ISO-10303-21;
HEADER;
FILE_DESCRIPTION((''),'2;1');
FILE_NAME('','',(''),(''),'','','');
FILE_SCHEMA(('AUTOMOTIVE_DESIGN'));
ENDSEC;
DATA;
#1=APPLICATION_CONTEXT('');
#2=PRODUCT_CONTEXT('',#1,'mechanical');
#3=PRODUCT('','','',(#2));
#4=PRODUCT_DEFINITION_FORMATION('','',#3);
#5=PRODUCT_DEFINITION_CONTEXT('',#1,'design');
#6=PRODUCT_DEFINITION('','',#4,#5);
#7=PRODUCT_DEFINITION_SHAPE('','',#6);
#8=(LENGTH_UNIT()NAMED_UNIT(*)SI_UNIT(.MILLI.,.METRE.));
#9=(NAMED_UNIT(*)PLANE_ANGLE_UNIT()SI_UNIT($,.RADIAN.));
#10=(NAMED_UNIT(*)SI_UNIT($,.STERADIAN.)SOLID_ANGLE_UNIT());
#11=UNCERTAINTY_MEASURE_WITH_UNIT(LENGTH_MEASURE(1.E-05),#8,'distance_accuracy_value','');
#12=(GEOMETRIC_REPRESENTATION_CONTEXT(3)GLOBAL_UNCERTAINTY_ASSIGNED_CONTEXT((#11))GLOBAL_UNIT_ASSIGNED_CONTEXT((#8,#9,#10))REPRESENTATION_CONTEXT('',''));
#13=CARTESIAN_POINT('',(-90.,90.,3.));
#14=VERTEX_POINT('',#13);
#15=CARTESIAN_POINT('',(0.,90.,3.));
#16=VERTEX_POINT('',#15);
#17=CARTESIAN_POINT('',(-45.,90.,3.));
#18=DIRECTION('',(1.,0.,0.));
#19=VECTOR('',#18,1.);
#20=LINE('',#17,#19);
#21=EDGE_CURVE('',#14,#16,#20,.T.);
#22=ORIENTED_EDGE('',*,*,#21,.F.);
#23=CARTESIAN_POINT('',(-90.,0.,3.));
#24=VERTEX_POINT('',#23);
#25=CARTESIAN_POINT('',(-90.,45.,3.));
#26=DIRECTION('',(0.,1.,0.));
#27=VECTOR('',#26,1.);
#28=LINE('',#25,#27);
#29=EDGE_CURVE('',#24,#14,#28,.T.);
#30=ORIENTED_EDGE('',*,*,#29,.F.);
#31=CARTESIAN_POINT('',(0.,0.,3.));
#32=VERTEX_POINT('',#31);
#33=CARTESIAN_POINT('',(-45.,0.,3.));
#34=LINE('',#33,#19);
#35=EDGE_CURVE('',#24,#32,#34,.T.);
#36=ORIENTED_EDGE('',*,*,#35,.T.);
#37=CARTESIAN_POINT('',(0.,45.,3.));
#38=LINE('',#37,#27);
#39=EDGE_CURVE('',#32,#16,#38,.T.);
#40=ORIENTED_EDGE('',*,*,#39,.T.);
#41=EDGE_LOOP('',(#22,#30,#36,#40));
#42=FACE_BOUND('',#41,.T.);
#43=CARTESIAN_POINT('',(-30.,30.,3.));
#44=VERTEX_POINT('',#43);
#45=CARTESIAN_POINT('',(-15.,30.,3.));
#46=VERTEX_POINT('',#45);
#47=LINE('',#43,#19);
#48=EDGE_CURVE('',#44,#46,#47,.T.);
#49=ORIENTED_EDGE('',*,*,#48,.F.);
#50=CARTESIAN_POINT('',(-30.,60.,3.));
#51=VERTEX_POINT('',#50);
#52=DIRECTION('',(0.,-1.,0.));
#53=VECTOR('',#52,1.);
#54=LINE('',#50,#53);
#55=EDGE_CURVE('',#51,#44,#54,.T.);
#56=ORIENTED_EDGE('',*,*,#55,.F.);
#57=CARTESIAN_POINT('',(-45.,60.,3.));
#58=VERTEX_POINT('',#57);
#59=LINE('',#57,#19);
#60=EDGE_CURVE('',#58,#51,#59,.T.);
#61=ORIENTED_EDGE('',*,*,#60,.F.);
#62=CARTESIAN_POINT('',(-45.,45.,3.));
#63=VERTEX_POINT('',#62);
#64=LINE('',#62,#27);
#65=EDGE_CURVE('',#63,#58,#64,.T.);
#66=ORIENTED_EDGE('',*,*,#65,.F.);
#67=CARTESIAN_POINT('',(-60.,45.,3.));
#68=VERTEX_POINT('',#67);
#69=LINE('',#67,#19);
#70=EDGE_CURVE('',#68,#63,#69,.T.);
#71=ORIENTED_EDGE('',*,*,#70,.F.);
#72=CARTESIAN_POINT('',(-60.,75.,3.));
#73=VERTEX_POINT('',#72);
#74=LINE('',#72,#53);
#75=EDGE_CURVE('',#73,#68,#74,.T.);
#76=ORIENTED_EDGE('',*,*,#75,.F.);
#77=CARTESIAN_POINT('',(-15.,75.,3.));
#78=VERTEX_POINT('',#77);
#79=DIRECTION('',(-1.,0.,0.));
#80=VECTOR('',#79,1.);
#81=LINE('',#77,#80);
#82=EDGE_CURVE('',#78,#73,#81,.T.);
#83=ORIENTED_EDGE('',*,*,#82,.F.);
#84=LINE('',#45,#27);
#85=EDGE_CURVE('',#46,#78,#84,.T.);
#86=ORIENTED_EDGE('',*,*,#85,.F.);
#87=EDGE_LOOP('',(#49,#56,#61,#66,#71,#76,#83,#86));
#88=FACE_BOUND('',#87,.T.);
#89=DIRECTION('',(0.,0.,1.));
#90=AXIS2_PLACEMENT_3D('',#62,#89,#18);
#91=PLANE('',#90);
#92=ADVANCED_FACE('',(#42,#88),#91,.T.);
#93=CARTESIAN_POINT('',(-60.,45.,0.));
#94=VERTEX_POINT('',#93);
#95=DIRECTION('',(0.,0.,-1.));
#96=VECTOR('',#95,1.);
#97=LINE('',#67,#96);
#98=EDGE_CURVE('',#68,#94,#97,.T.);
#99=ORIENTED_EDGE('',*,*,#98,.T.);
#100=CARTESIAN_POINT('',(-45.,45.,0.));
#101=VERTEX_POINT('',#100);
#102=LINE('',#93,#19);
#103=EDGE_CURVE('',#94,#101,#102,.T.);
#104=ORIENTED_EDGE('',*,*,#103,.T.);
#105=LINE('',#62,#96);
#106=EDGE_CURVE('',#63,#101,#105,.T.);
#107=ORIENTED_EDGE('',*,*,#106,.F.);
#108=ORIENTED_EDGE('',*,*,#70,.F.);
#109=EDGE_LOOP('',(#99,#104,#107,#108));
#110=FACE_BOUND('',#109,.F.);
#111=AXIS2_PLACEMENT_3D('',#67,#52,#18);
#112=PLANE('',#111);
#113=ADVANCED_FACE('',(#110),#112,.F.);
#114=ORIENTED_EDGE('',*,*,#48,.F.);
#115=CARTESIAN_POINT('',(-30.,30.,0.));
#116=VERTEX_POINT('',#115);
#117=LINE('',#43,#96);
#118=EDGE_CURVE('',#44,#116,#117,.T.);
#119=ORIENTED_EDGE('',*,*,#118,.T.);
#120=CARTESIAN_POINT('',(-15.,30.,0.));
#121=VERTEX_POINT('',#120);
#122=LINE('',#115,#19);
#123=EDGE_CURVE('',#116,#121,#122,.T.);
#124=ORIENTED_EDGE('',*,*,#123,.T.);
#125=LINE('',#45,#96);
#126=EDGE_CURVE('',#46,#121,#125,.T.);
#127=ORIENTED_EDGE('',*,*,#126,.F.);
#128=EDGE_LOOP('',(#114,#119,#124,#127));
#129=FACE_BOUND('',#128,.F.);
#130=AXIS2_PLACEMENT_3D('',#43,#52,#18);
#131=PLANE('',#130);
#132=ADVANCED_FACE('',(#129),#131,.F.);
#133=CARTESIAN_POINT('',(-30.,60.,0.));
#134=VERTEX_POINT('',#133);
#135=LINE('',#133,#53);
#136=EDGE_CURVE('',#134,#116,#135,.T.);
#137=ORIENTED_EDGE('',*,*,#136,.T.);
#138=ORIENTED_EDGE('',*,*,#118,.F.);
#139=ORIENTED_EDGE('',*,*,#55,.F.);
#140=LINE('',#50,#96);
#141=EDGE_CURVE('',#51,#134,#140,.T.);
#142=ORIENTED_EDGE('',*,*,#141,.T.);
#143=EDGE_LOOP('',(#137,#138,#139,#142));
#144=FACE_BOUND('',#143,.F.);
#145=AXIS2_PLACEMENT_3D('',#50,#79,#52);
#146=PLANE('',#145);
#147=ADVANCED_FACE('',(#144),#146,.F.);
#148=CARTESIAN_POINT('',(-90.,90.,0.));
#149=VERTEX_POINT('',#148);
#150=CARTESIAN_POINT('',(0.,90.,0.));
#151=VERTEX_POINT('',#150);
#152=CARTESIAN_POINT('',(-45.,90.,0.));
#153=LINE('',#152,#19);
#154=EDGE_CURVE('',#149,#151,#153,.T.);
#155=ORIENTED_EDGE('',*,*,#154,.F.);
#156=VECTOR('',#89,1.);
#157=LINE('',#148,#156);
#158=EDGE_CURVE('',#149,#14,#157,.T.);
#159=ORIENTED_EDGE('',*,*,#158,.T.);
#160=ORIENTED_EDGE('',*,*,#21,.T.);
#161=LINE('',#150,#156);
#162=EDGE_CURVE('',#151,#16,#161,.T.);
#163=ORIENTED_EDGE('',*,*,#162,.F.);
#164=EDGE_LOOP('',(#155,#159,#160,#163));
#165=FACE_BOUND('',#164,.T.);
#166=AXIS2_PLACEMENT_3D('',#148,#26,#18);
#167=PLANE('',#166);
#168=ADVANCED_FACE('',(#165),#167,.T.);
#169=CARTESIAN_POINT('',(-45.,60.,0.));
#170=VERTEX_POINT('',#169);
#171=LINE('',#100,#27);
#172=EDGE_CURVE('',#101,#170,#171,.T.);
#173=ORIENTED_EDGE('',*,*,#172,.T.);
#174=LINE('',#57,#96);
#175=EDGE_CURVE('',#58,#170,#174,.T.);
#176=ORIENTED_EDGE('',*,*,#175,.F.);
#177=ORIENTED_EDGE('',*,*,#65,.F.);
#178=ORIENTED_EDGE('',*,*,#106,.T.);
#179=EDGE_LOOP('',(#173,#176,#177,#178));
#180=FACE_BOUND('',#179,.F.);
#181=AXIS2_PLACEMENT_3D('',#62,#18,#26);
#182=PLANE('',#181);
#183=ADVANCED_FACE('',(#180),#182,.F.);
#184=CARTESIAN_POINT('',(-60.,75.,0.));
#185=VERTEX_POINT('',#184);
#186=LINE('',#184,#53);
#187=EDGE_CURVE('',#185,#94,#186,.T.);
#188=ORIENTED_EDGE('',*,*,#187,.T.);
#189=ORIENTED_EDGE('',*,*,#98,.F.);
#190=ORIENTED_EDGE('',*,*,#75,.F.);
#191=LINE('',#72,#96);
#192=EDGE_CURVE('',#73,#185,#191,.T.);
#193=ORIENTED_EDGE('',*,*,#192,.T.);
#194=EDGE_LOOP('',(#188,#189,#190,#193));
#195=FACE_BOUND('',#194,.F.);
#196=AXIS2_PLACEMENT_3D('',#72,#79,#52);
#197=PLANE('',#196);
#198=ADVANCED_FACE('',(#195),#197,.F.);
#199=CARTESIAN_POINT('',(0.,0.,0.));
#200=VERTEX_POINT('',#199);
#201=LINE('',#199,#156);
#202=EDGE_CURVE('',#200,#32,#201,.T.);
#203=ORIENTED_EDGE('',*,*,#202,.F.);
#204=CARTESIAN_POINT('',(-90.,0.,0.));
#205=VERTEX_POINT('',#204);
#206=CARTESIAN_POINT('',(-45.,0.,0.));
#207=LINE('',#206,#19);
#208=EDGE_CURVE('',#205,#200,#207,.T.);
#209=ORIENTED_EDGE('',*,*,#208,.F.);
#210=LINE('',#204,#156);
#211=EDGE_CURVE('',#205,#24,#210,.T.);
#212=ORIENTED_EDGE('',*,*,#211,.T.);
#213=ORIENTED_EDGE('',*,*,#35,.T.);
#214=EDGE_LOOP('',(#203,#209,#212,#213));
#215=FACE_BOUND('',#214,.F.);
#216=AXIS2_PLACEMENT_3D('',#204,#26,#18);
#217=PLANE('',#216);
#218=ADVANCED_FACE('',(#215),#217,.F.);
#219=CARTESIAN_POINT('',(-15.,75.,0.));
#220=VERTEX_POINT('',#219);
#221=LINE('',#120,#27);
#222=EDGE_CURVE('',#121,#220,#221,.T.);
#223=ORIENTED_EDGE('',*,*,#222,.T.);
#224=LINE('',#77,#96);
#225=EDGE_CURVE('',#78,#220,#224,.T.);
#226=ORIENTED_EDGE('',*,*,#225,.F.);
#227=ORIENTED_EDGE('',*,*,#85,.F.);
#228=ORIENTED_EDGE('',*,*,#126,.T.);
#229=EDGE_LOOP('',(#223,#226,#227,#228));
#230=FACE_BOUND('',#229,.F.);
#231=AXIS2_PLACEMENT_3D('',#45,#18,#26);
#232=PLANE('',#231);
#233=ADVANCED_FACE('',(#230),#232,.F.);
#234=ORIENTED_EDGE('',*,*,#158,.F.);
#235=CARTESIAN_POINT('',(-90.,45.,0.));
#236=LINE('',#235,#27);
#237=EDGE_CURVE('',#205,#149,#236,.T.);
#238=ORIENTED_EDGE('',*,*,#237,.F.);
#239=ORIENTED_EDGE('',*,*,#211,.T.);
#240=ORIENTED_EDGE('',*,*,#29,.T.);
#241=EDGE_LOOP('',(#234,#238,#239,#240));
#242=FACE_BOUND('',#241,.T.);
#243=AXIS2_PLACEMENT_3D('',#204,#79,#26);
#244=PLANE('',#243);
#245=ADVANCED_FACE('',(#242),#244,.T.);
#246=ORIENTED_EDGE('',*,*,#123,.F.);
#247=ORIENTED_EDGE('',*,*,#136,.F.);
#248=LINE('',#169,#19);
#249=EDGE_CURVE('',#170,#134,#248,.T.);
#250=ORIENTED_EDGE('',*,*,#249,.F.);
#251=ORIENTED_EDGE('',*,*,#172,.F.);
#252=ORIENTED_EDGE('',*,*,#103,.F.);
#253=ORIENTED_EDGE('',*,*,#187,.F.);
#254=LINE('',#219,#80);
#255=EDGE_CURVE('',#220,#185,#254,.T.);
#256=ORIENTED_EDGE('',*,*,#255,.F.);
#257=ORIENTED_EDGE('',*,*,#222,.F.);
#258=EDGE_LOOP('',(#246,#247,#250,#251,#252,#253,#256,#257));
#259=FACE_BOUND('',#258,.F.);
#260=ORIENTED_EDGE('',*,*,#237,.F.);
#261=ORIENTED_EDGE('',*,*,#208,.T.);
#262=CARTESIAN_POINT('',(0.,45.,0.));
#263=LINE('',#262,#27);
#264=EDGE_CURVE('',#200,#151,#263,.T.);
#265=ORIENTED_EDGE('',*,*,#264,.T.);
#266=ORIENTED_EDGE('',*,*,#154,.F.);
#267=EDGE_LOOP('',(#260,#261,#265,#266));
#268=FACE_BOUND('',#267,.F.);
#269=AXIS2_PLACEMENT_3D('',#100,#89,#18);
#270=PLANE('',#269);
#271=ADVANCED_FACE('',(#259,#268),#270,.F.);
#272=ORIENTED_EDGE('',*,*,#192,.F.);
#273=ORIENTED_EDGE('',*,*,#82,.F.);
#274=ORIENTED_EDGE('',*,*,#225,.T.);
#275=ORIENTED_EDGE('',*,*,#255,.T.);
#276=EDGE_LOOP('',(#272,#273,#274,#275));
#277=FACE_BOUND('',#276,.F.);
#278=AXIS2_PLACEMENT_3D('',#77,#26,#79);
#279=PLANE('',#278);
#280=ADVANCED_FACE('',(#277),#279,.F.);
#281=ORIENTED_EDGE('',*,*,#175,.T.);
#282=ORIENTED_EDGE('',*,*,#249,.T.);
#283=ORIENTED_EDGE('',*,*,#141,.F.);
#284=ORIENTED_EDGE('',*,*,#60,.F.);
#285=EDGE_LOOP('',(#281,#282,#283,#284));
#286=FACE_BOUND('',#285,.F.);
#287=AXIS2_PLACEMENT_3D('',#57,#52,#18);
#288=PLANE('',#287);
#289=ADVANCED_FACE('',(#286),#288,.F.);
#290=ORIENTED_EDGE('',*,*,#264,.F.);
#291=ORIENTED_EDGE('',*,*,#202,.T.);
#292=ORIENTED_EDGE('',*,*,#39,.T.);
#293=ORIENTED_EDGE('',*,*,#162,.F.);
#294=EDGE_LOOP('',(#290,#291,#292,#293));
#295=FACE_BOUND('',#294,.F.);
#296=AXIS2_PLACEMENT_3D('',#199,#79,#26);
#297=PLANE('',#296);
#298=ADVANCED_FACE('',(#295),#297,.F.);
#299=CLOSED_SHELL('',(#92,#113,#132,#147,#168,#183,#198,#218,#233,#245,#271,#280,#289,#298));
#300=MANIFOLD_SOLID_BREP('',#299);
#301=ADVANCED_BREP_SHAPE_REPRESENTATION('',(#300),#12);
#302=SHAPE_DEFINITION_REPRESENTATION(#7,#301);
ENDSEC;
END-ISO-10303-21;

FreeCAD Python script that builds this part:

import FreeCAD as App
import Part
import Sketcher

doc = App.newDocument("Part")
body = doc.addObject("PartDesign::Body", "Body")

sketch1 = doc.addObject("Sketcher::SketchObject", "Sketch")
body.addObject(sketch1)
sketch1.AttachmentSupport = (doc.XY_Plane, [""])
sketch1.MapMode = "FlatFace"
sketch1.addGeometry([
    Part.LineSegment(App.Vector(-90, 90, 0), App.Vector(-90, 0, 0)),
    Part.LineSegment(App.Vector(-90, 0, 0), App.Vector(0, 0, 0)),
    Part.LineSegment(App.Vector(0, 0, 0), App.Vector(0, 90, 0)),
    Part.LineSegment(App.Vector(0, 90, 0), App.Vector(-90, 90, 0)),
], False)
sketch1.addConstraint([
    Sketcher.Constraint("Coincident", 0, 2, 1, 1),
    Sketcher.Constraint("Coincident", 1, 2, 2, 1),
    Sketcher.Constraint("Coincident", 2, 2, 3, 1),
    Sketcher.Constraint("Coincident", 3, 2, 0, 1),
    Sketcher.Constraint("Vertical", 0),
    Sketcher.Constraint("Horizontal", 1),
    Sketcher.Constraint("Vertical", 2),
    Sketcher.Constraint("Horizontal", 3),
    Sketcher.Constraint("Coincident", 1, 2, -1, 1),
    Sketcher.Constraint("Equal", 3, 0),
    Sketcher.Constraint("DistanceX", 1, 1, 1, 2, 90.0),
])
pad1 = doc.addObject("PartDesign::Pad", "Pad")
body.addObject(pad1)
pad1.Profile = sketch1
pad1.Length = 3

sketch2 = doc.addObject("Sketcher::SketchObject", "Sketch001")
body.addObject(sketch2)
sketch2.AttachmentSupport = (doc.XY_Plane, [""])
sketch2.MapMode = "FlatFace"
sketch2.AttachmentOffset = App.Placement(App.Vector(0, 0, 3), App.Rotation())
sketch2.addGeometry([
    Part.LineSegment(App.Vector(-60, 75, 0), App.Vector(-60, 45, 0)),
    Part.LineSegment(App.Vector(-60, 45, 0), App.Vector(-45, 45, 0)),
    Part.LineSegment(App.Vector(-45, 45, 0), App.Vector(-45, 60, 0)),
    Part.LineSegment(App.Vector(-45, 60, 0), App.Vector(-30, 60, 0)),
    Part.LineSegment(App.Vector(-30, 60, 0), App.Vector(-30, 30, 0)),
    Part.LineSegment(App.Vector(-30, 30, 0), App.Vector(-15, 30, 0)),
    Part.LineSegment(App.Vector(-15, 30, 0), App.Vector(-15, 75, 0)),
    Part.LineSegment(App.Vector(-15, 75, 0), App.Vector(-60, 75, 0)),
], False)
sketch2.addConstraint([
    Sketcher.Constraint("Coincident", 0, 2, 1, 1),
    Sketcher.Constraint("Coincident", 1, 2, 2, 1),
    Sketcher.Constraint("Coincident", 2, 2, 3, 1),
    Sketcher.Constraint("Coincident", 3, 2, 4, 1),
    Sketcher.Constraint("Coincident", 4, 2, 5, 1),
    Sketcher.Constraint("Coincident", 5, 2, 6, 1),
    Sketcher.Constraint("Coincident", 6, 2, 7, 1),
    Sketcher.Constraint("Coincident", 7, 2, 0, 1),
    Sketcher.Constraint("Vertical", 0),
    Sketcher.Constraint("Horizontal", 1),
    Sketcher.Constraint("Vertical", 2),
    Sketcher.Constraint("Horizontal", 3),
    Sketcher.Constraint("Vertical", 4),
    Sketcher.Constraint("Horizontal", 5),
    Sketcher.Constraint("Vertical", 6),
    Sketcher.Constraint("Horizontal", 7),
    Sketcher.Constraint("Equal", 1, 3),
    Sketcher.Constraint("Equal", 3, 5),
    Sketcher.Constraint("Equal", 5, 2),
    Sketcher.Constraint("Equal", 0, 4),
    Sketcher.Constraint("Equal", 7, 6),
    Sketcher.Constraint("DistanceX", 1, 1, 1, 2, 15.0),
    Sketcher.Constraint("DistanceX", 0, 2, -1, 1, 60.0),
    Sketcher.Constraint("DistanceY", -1, 1, 0, 2, 45.0),
])
pocket1 = doc.addObject("PartDesign::Pocket", "Pocket")
body.addObject(pocket1)
pocket1.Profile = sketch2
pocket1.Length = 3

doc.recompute()
